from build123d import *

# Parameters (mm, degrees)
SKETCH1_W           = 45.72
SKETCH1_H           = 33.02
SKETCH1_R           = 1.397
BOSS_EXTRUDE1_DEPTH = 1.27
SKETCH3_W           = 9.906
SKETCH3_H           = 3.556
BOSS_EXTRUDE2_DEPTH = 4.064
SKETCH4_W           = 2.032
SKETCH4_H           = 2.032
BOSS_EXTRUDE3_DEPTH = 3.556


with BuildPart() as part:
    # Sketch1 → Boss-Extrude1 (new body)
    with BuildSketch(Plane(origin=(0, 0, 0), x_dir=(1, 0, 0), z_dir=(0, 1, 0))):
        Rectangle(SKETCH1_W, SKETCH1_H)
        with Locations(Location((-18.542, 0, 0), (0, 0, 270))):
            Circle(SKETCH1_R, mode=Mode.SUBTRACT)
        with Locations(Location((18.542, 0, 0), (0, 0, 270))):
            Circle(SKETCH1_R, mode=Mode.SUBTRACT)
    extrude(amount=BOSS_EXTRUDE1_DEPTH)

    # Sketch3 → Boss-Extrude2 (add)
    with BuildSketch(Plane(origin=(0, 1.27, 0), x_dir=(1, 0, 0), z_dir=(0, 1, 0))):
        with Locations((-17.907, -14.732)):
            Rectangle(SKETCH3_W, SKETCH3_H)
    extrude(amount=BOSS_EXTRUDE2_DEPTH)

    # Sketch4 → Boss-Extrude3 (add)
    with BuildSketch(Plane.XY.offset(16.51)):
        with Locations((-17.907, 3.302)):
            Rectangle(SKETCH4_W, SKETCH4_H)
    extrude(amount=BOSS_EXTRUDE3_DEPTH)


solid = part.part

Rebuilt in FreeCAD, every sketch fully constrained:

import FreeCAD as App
import Part
import Sketcher
from FreeCAD import Vector
Q = App.Units.Quantity


def add_polygon(sketch, points):
    """Adds a closed chain of lines whose ends are joined by coincident constraints."""
    first, n = sketch.GeometryCount, len(points)
    for a, b in zip(points, points[1:] + points[:1]):
        sketch.addGeometry(Part.LineSegment(App.Vector(*a, 0), App.Vector(*b, 0)), False)
    for i in range(n):
        sketch.addConstraint(Sketcher.Constraint("Coincident", first + i, 2, first + (i + 1) % n, 1))

doc = App.newDocument("Part")
params = doc.addObject("Spreadsheet::Sheet", "Params")
for row, (alias, value) in enumerate([
    ("sketch1_diameter", "0.11 in"),
    ("sketch1_width", "1.8 in"),
    ("sketch1_height", "1.3 in"),
    ("pad1_length", "0.05 in"),
    ("sketch2_width", "0.39 in"),
    ("sketch2_height", "0.14 in"),
    ("pad2_length", "0.16 in"),
    ("sketch3_width", "0.08 in"),
    ("pad3_length", "0.14 in"),
], start=1):
    params.set(f"A{row}", alias)
    params.set(f"B{row}", "=" + value)
    params.setAlias(f"B{row}", alias)

body = doc.addObject("PartDesign::Body", "Body")

# Sketch on XZ plane
sketch1 = body.newObject("Sketcher::SketchObject", "Sketch")
sketch1.AttachmentSupport = (doc.getObject("XZ_Plane"), [""])
sketch1.MapMode = "FlatFace"
add_polygon(sketch1, [(-22.9, -16.5), (-22.9, 16.5), (22.9, 16.5), (22.9, -16.5)])  # lines 0-3
sketch1.addGeometry(Part.Circle(Vector(-18.5, 0, 0), Vector(0, 0, 1), 1.4), False)  # 4
sketch1.addGeometry(Part.Circle(Vector(18.5, 0, 0), Vector(0, 0, 1), 1.4), False)  # 5
sketch1.addConstraint([
    Sketcher.Constraint("Vertical", 0),
    Sketcher.Constraint("Horizontal", 1),
    Sketcher.Constraint("Vertical", 2),
    Sketcher.Constraint("Horizontal", 3),
    Sketcher.Constraint("Equal", 4, 5),
    Sketcher.Constraint("Symmetric", 4, 3, 5, 3, -1, 1),
    Sketcher.Constraint("Symmetric", 0, 2, 2, 2, -1, 1),
    Sketcher.Constraint("PointOnObject", 4, 3, -1),
    Sketcher.Constraint("Diameter", 4, Q("0.11 in")),
    Sketcher.Constraint("DistanceX", 1, 1, 1, 2, Q("1.8 in")),
    Sketcher.Constraint("DistanceY", 0, 1, 0, 2, Q("1.3 in")),
    Sketcher.Constraint("DistanceX", 4, 3, -1, 1, Q("0.73 in")),
])
sketch1.setExpression("Constraints[12]", "Params.sketch1_diameter")
sketch1.setExpression("Constraints[13]", "Params.sketch1_width")
sketch1.setExpression("Constraints[14]", "Params.sketch1_height")
pad1 = body.newObject("PartDesign::Pad", "Pad")
pad1.Profile = sketch1
pad1.setExpression("Length", "Params.pad1_length")
pad1.Reversed = True

# Sketch on XZ plane
sketch2 = body.newObject("Sketcher::SketchObject", "Sketch001")
sketch2.AttachmentSupport = (doc.getObject("XZ_Plane"), [""])
sketch2.MapMode = "FlatFace"
sketch2.AttachmentOffset = App.Placement(Vector(0, 0, -0.05 * 25.4), App.Rotation())
add_polygon(sketch2, [(-22.9, 13), (-22.9, 16.5), (-13, 16.5), (-13, 13)])  # lines 0-3
sketch2.addConstraint([
    Sketcher.Constraint("Vertical", 0),
    Sketcher.Constraint("Horizontal", 1),
    Sketcher.Constraint("Vertical", 2),
    Sketcher.Constraint("Horizontal", 3),
    Sketcher.Constraint("DistanceX", 1, 1, 1, 2, Q("0.39 in")),
    Sketcher.Constraint("DistanceY", 0, 1, 0, 2, Q("0.14 in")),
    Sketcher.Constraint("DistanceX", 0, 2, -1, 1, Q("0.9 in")),
    Sketcher.Constraint("DistanceY", -1, 1, 0, 2, Q("0.65 in")),
])
sketch2.setExpression("Constraints[8]", "Params.sketch2_width")
sketch2.setExpression("Constraints[9]", "Params.sketch2_height")
pad2 = body.newObject("PartDesign::Pad", "Pad001")
pad2.Profile = sketch2
pad2.setExpression("Length", "Params.pad2_length")
pad2.Reversed = True

# Sketch on XY plane
sketch3 = body.newObject("Sketcher::SketchObject", "Sketch002")
sketch3.AttachmentSupport = (doc.getObject("XY_Plane"), [""])
sketch3.MapMode = "FlatFace"
sketch3.AttachmentOffset = App.Placement(Vector(0, 0, 0.65 * 25.4), App.Rotation())
add_polygon(sketch3, [(-18.9, 4.3), (-18.9, 2.3), (-16.9, 2.3), (-16.9, 4.3)])  # lines 0-3
sketch3.addConstraint([
    Sketcher.Constraint("Vertical", 0),
    Sketcher.Constraint("Horizontal", 1),
    Sketcher.Constraint("Vertical", 2),
    Sketcher.Constraint("Horizontal", 3),
    Sketcher.Constraint("Equal", 3, 0),
    Sketcher.Constraint("DistanceX", 1, 1, 1, 2, Q("0.08 in")),
    Sketcher.Constraint("DistanceY", -1, 1, 0, 2, Q("0.09 in")),
    Sketcher.Constraint("DistanceX", 0, 2, -1, 1, Q("0.745 in")),
])
sketch3.setExpression("Constraints[9]", "Params.sketch3_width")
pad3 = body.newObject("PartDesign::Pad", "Pad002")
pad3.Profile = sketch3
pad3.setExpression("Length", "Params.pad3_length")

doc.recompute()
